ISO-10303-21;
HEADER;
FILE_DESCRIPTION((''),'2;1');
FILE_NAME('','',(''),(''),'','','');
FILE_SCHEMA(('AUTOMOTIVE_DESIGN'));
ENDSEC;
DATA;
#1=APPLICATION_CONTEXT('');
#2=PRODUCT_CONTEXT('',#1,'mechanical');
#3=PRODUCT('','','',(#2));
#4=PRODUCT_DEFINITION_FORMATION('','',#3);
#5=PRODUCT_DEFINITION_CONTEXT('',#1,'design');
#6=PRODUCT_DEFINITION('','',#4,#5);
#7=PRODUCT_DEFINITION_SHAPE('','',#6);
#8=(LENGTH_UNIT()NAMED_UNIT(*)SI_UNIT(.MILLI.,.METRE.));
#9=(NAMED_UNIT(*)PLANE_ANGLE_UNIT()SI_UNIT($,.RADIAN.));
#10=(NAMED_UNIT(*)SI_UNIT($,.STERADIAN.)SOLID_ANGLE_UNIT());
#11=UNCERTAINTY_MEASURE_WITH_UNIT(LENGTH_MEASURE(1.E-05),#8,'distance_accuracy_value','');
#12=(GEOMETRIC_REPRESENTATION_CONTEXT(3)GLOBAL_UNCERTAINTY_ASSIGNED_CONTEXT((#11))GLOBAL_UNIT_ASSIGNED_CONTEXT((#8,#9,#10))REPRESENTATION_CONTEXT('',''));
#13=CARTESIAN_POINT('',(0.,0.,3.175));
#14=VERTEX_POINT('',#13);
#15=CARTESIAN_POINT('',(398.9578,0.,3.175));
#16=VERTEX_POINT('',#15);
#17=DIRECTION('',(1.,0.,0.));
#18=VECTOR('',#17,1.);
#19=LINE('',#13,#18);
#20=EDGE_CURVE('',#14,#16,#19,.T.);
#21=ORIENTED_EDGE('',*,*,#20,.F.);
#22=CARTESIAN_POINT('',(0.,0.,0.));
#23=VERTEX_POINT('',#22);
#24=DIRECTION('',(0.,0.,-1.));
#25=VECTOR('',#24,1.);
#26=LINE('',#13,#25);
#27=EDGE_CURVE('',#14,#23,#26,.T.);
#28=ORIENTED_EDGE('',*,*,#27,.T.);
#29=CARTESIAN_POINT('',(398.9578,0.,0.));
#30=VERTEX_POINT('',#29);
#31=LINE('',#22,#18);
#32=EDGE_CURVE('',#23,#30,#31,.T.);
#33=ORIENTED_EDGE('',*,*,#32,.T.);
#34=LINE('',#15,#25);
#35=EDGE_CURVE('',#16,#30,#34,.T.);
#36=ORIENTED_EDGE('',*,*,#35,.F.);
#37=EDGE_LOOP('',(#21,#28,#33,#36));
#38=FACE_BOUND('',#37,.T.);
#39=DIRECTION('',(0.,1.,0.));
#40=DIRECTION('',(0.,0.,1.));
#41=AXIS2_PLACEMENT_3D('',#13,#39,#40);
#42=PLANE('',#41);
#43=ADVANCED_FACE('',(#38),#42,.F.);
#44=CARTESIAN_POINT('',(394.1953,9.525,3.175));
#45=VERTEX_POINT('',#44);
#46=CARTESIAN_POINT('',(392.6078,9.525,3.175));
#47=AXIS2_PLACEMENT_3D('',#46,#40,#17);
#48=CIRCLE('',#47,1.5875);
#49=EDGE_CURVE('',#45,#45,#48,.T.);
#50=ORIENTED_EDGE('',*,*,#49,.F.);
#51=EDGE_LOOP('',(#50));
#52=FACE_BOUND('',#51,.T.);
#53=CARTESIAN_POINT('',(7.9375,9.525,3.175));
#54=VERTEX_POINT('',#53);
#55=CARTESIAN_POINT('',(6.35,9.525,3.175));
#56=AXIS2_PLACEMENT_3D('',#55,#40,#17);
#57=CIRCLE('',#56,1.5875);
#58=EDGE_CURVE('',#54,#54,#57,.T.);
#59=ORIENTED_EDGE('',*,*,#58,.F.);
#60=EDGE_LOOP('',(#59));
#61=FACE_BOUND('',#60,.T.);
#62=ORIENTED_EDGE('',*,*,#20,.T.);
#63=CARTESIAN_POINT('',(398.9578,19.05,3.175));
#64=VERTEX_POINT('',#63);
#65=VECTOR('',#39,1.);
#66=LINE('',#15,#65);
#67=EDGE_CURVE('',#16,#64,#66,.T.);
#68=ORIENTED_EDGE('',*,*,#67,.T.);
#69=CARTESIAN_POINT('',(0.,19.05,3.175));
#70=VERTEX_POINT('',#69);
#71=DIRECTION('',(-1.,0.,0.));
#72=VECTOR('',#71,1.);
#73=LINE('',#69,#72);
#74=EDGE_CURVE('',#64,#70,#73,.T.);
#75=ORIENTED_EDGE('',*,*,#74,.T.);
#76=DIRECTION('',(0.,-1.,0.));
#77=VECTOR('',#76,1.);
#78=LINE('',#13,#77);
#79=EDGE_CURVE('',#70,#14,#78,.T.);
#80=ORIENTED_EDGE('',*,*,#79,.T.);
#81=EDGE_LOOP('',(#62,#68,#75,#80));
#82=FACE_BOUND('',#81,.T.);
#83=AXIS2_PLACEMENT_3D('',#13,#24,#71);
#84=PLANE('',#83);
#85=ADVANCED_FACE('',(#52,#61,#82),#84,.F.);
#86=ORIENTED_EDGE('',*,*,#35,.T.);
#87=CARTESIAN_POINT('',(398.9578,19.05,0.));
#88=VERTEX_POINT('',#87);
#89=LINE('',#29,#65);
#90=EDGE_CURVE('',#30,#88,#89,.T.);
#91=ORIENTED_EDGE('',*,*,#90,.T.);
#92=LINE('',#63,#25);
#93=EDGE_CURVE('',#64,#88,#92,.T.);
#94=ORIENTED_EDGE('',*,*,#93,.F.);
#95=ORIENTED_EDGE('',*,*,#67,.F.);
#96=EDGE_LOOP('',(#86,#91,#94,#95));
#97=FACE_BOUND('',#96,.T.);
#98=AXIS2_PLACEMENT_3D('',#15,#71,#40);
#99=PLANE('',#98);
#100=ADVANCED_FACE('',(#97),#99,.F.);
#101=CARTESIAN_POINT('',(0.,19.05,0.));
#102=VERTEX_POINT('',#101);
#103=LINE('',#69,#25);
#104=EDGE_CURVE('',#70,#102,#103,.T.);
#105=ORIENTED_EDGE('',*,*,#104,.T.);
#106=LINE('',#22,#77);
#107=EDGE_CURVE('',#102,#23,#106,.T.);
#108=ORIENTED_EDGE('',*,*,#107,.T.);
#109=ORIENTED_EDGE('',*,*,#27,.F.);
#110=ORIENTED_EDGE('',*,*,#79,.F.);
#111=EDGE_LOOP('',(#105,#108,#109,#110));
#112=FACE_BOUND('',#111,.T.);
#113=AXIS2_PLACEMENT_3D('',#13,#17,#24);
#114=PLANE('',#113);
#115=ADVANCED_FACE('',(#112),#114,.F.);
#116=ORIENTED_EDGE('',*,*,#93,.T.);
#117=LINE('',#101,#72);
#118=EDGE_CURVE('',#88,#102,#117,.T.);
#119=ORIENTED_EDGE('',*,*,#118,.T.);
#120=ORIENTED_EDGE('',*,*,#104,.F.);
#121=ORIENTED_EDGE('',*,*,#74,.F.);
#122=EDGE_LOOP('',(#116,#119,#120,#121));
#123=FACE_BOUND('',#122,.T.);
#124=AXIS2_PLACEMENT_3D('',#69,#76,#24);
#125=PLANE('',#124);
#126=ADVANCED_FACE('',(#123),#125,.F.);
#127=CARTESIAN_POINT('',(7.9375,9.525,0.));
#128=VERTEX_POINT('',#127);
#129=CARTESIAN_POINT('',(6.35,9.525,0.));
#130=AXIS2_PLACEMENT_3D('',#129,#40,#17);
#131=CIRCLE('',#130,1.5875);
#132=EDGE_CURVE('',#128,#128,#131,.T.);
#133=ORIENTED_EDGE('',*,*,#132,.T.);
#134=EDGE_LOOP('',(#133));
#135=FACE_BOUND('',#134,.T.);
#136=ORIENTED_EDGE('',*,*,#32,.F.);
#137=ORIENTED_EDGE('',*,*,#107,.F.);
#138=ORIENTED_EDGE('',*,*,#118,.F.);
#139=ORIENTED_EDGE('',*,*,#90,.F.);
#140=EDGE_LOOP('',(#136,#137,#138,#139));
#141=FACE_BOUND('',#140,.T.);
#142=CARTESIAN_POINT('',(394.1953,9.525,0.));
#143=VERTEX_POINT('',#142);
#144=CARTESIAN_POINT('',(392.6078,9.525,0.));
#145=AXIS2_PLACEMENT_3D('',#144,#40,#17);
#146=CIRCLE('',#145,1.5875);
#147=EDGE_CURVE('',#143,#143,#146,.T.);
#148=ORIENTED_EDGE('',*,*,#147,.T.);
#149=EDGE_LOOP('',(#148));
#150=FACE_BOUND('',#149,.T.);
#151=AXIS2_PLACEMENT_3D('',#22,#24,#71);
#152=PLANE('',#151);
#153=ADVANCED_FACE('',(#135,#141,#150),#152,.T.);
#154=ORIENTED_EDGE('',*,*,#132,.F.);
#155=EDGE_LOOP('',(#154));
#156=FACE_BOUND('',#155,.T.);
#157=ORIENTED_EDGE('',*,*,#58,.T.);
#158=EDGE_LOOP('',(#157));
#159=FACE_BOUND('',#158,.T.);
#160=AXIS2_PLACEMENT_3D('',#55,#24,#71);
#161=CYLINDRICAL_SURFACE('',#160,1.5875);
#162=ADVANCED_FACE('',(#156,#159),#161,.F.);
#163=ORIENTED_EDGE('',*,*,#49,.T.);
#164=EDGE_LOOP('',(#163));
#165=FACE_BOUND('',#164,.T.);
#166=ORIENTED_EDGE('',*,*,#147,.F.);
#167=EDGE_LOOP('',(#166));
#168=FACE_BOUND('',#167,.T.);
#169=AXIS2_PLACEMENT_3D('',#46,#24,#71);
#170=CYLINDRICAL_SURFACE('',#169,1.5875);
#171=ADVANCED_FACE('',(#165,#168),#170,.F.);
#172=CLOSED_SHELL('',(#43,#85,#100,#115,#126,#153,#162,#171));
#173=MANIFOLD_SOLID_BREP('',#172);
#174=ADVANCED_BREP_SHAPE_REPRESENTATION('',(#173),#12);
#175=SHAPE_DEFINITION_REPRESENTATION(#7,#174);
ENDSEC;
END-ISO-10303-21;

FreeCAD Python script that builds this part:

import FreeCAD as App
import Part
import Sketcher

V = App.Vector
Q = App.Units.Quantity

doc = App.newDocument("Part")
body = doc.addObject("PartDesign::Body", "Body")

sketch1 = body.newObject("Sketcher::SketchObject", "Sketch")
sketch1.AttachmentSupport = (doc.getObject("XY_Plane"), [""])
sketch1.MapMode = "FlatFace"
sketch1.addGeometry([
    Part.LineSegment(V(0, 19.1, 0), V(0, 0, 0)),
    Part.LineSegment(V(0, 0, 0), V(399, 0, 0)),
    Part.LineSegment(V(399, 0, 0), V(399, 19.1, 0)),
    Part.LineSegment(V(399, 19.1, 0), V(0, 19.1, 0)),
    Part.Circle(V(6.3, 9.5, 0), V(0, 0, 1), 1.6),
    Part.Circle(V(392.6, 9.5, 0), V(0, 0, 1), 1.6),
], False)
sketch1.addConstraint([
    Sketcher.Constraint("Coincident", 0, 2, 1, 1),
    Sketcher.Constraint("Coincident", 1, 2, 2, 1),
    Sketcher.Constraint("Coincident", 2, 2, 3, 1),
    Sketcher.Constraint("Coincident", 3, 2, 0, 1),
    Sketcher.Constraint("Vertical", 0),
    Sketcher.Constraint("Horizontal", 1),
    Sketcher.Constraint("Vertical", 2),
    Sketcher.Constraint("Horizontal", 3),
    Sketcher.Constraint("Coincident", 0, 2, -1, 1),
    Sketcher.Constraint("Equal", 4, 5),
    Sketcher.Constraint("Horizontal", 4, 3, 5, 3),
    Sketcher.Constraint("Diameter", 4, Q("0.125 in")),
    Sketcher.Constraint("DistanceY", 0, 2, 0, 1, Q("0.75 in")),
    Sketcher.Constraint("DistanceX", 1, 1, 1, 2, Q("15.707 in")),
    Sketcher.Constraint("DistanceX", -1, 1, 4, 3, Q("0.25 in")),
    Sketcher.Constraint("DistanceX", 5, 3, 1, 2, Q("0.25 in")),
    Sketcher.Constraint("DistanceY", -1, 1, 4, 3, Q("0.375 in")),
])
pad1 = body.newObject("PartDesign::Pad", "Pad")
pad1.Profile = sketch1
pad1.Length = Q("0.125 in")

doc.recompute()
